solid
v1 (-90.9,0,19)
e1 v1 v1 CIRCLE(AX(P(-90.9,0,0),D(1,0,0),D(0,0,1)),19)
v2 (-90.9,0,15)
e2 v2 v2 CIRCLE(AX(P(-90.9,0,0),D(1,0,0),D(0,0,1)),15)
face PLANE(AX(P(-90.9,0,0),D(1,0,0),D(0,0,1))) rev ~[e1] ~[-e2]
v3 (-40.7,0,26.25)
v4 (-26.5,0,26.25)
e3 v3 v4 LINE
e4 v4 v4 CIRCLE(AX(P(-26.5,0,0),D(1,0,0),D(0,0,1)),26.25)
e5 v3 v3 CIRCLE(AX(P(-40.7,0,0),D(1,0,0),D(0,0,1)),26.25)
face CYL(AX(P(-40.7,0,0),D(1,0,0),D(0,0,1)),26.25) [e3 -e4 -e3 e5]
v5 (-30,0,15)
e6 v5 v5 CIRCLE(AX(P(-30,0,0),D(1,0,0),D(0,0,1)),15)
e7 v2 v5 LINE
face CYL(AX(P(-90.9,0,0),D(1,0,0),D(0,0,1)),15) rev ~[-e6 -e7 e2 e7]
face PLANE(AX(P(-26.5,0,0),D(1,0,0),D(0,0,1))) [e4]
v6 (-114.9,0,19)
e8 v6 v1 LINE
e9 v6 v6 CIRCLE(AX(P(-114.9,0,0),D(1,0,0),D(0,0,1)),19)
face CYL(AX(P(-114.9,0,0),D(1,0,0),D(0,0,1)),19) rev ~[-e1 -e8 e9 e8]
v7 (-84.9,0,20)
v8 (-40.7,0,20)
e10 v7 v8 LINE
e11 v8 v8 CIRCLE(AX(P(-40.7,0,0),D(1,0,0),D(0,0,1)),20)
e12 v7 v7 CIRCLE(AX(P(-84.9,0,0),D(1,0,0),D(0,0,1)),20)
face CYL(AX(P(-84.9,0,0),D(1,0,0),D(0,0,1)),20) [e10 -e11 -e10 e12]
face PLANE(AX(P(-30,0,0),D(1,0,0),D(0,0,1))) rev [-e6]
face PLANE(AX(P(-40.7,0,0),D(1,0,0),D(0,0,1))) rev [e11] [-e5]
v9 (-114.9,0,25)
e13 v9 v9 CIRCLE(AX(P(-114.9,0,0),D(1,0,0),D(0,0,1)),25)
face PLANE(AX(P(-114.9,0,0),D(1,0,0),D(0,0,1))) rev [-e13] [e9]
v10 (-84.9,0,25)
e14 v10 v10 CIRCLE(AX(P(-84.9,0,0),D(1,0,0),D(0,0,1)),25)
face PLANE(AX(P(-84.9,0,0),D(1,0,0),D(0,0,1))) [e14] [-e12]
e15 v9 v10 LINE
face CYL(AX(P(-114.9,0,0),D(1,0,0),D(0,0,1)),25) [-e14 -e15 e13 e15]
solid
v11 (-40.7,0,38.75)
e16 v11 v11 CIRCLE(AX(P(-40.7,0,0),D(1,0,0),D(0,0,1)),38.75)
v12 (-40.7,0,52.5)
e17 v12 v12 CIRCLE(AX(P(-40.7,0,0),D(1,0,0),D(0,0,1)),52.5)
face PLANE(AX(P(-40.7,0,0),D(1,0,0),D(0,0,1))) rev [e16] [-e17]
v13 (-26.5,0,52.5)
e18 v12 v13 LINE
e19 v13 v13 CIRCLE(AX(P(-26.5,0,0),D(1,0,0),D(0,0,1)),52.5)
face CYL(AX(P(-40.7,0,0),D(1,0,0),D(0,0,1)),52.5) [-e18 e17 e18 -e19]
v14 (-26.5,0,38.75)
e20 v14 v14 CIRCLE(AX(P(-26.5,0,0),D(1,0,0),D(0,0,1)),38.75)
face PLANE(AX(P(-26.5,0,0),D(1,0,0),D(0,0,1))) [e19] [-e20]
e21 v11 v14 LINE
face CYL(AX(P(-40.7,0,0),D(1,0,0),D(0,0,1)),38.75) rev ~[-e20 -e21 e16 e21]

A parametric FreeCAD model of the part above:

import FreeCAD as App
import Part
import Sketcher

V = App.Vector

doc = App.newDocument("Part")
body = doc.addObject("PartDesign::Body", "Body")
body.AllowCompound = True

sketch1 = body.newObject("Sketcher::SketchObject", "Sketch")
sketch1.AttachmentSupport = (doc.getObject("XZ_Plane"), [""])
sketch1.MapMode = "FlatFace"
sketch1.addGeometry([
    Part.LineSegment(V(-90.9, 19, 0), V(-114.9, 19, 0)),
    Part.LineSegment(V(-114.9, 19, 0), V(-114.9, 25, 0)),
    Part.LineSegment(V(-114.9, 25, 0), V(-84.9, 25, 0)),
    Part.LineSegment(V(-84.9, 25, 0), V(-84.9, 20, 0)),
    Part.LineSegment(V(-84.9, 20, 0), V(-40.7, 20, 0)),
    Part.LineSegment(V(-40.7, 20, 0), V(-40.7, 26.25, 0)),
    Part.LineSegment(V(-40.7, 26.25, 0), V(-26.5, 26.25, 0)),
    Part.LineSegment(V(-26.5, 26.25, 0), V(-26.5, 0, 0)),
    Part.LineSegment(V(-26.5, 0, 0), V(-30, 0, 0)),
    Part.LineSegment(V(-30, 0, 0), V(-30, 15, 0)),
    Part.LineSegment(V(-30, 15, 0), V(-90.9, 15, 0)),
    Part.LineSegment(V(-90.9, 15, 0), V(-90.9, 19, 0)),
    Part.LineSegment(V(-26.5, 38.75, 0), V(-40.7, 38.75, 0)),
    Part.LineSegment(V(-40.7, 38.75, 0), V(-40.7, 52.5, 0)),
    Part.LineSegment(V(-40.7, 52.5, 0), V(-26.5, 52.5, 0)),
    Part.LineSegment(V(-26.5, 52.5, 0), V(-26.5, 38.75, 0)),
], False)
sketch1.addConstraint([
    Sketcher.Constraint("Coincident", 0, 2, 1, 1),
    Sketcher.Constraint("Coincident", 1, 2, 2, 1),
    Sketcher.Constraint("Coincident", 2, 2, 3, 1),
    Sketcher.Constraint("Coincident", 3, 2, 4, 1),
    Sketcher.Constraint("Coincident", 4, 2, 5, 1),
    Sketcher.Constraint("Coincident", 5, 2, 6, 1),
    Sketcher.Constraint("Coincident", 6, 2, 7, 1),
    Sketcher.Constraint("Coincident", 7, 2, 8, 1),
    Sketcher.Constraint("Coincident", 8, 2, 9, 1),
    Sketcher.Constraint("Coincident", 9, 2, 10, 1),
    Sketcher.Constraint("Coincident", 10, 2, 11, 1),
    Sketcher.Constraint("Coincident", 11, 2, 0, 1),
    Sketcher.Constraint("Coincident", 12, 2, 13, 1),
    Sketcher.Constraint("Coincident", 13, 2, 14, 1),
    Sketcher.Constraint("Coincident", 14, 2, 15, 1),
    Sketcher.Constraint("Coincident", 15, 2, 12, 1),
    Sketcher.Constraint("Horizontal", 0),
    Sketcher.Constraint("Vertical", 1),
    Sketcher.Constraint("Horizontal", 2),
    Sketcher.Constraint("Vertical", 3),
    Sketcher.Constraint("Horizontal", 4),
    Sketcher.Constraint("Vertical", 5),
    Sketcher.Constraint("Horizontal", 6),
    Sketcher.Constraint("Vertical", 7),
    Sketcher.Constraint("Horizontal", 8),
    Sketcher.Constraint("Vertical", 9),
    Sketcher.Constraint("Horizontal", 10),
    Sketcher.Constraint("Vertical", 11),
    Sketcher.Constraint("Horizontal", 12),
    Sketcher.Constraint("Vertical", 13),
    Sketcher.Constraint("Horizontal", 14),
    Sketcher.Constraint("Vertical", 15),
    Sketcher.Constraint("PointOnObject", 7, 2, -1),
    Sketcher.Constraint("Vertical", 5, 2, 12, 2),
    Sketcher.Constraint("Vertical", 7, 2, 14, 2),
    Sketcher.Constraint("DistanceX", 0, 2, 0, 1, 24.0),
    Sketcher.Constraint("DistanceX", 2, 1, 2, 2, 30.0),
    Sketcher.Constraint("DistanceY", 3, 2, 3, 1, 5.0),
    Sketcher.Constraint("DistanceY", 11, 1, 11, 2, 4.0),
    Sketcher.Constraint("DistanceX", 4, 1, 4, 2, 44.2),
    Sketcher.Constraint("DistanceX", 6, 1, 6, 2, 14.2),
    Sketcher.Constraint("DistanceX", 8, 2, 8, 1, 3.5),
    Sketcher.Constraint("DistanceY", -1, 1, 0, 2, 19.0),
    Sketcher.Constraint("DistanceY", -1, 1, 1, 2, 25.0),
    Sketcher.Constraint("DistanceX", 8, 2, -1, 1, 30.0),
    Sketcher.Constraint("DistanceY", 5, 1, 5, 2, 6.25),
    Sketcher.Constraint("DistanceY", 4, 2, 13, 2, 32.5),
    Sketcher.Constraint("DistanceY", 13, 1, 13, 2, 13.75),
])
revolution = body.newObject("PartDesign::Revolution", "Revolution")
revolution.Profile = sketch1
revolution.ReferenceAxis = (sketch1, ["H_Axis"])
revolution.Angle = 360

doc.recompute()
